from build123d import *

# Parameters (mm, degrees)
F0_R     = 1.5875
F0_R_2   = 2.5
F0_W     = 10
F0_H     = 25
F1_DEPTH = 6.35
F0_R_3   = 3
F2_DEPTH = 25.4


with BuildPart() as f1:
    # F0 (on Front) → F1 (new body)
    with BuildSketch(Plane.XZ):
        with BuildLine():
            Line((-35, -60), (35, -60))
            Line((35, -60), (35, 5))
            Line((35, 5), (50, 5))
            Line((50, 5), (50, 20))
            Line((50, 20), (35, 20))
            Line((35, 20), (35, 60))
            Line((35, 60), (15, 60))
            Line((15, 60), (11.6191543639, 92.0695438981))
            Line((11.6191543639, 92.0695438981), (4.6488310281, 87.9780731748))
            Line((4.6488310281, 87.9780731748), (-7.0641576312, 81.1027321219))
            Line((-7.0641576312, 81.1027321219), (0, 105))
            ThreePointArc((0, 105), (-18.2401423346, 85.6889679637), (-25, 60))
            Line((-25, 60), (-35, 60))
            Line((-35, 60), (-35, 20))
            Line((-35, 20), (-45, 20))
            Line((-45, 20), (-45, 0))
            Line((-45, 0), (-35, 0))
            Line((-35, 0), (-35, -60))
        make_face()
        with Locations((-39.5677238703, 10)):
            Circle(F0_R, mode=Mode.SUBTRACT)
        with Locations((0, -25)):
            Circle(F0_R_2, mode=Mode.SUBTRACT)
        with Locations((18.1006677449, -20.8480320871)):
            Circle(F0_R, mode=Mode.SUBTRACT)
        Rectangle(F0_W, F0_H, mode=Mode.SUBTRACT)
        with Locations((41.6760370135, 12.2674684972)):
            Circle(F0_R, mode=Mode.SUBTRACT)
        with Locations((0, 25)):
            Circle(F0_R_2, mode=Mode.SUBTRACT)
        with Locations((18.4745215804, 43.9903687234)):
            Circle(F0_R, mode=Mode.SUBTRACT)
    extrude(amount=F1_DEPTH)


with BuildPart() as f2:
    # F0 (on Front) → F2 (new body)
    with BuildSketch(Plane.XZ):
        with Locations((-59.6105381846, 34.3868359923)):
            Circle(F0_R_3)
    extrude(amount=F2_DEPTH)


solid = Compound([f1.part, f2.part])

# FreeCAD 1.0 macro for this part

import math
import FreeCAD as App
import Part
import Sketcher


def add_polygon(sketch, points):
    """Adds a closed chain of lines whose ends are joined by coincident constraints."""
    first, n = sketch.GeometryCount, len(points)
    for a, b in zip(points, points[1:] + points[:1]):
        sketch.addGeometry(Part.LineSegment(App.Vector(*a, 0), App.Vector(*b, 0)), False)
    for i in range(n):
        sketch.addConstraint(Sketcher.Constraint("Coincident", first + i, 2, first + (i + 1) % n, 1))

doc = App.newDocument("Part")
body = doc.addObject("PartDesign::Body", "Body")

# Sketch on XZ plane
sketch1 = body.newObject("Sketcher::SketchObject", "Sketch")
sketch1.AttachmentSupport = (doc.getObject("XZ_Plane"), [""])
sketch1.MapMode = "FlatFace"
sketch1.addGeometry(Part.LineSegment(App.Vector(-35, -60, 0), App.Vector(35, -60, 0)), False)  # 0
sketch1.addGeometry(Part.LineSegment(App.Vector(35, -60, 0), App.Vector(35, 5, 0)), False)  # 1
sketch1.addGeometry(Part.LineSegment(App.Vector(35, 5, 0), App.Vector(50, 5, 0)), False)  # 2
sketch1.addGeometry(Part.LineSegment(App.Vector(50, 5, 0), App.Vector(50, 20, 0)), False)  # 3
sketch1.addGeometry(Part.LineSegment(App.Vector(50, 20, 0), App.Vector(35, 20, 0)), False)  # 4
sketch1.addGeometry(Part.LineSegment(App.Vector(35, 20, 0), App.Vector(35, 60, 0)), False)  # 5
sketch1.addGeometry(Part.LineSegment(App.Vector(35, 60, 0), App.Vector(15, 60, 0)), False)  # 6
sketch1.addGeometry(Part.LineSegment(App.Vector(15, 60, 0), App.Vector(11.619154, 92.069544, 0)), False)  # 7
sketch1.addGeometry(Part.LineSegment(App.Vector(11.619154, 92.069544, 0), App.Vector(4.648831, 87.978073, 0)), False)  # 8
sketch1.addGeometry(Part.LineSegment(App.Vector(4.648831, 87.978073, 0), App.Vector(-7.064158, 81.102732, 0)), False)  # 9
sketch1.addGeometry(Part.LineSegment(App.Vector(-7.064158, 81.102732, 0), App.Vector(0, 105, 0)), False)  # 10
sketch1.addGeometry(Part.ArcOfCircle(Part.Circle(App.Vector(28.727267, 59.595963, 0), App.Vector(0, 0, 1), 53.728787), math.radians(122.321657), math.radians(179.569135)), False)  # 11
sketch1.addGeometry(Part.LineSegment(App.Vector(-25, 60, 0), App.Vector(-35, 60, 0)), False)  # 12
sketch1.addGeometry(Part.LineSegment(App.Vector(-35, 60, 0), App.Vector(-35, 20, 0)), False)  # 13
sketch1.addGeometry(Part.LineSegment(App.Vector(-35, 20, 0), App.Vector(-45, 20, 0)), False)  # 14
sketch1.addGeometry(Part.LineSegment(App.Vector(-45, 20, 0), App.Vector(-45, 0, 0)), False)  # 15
sketch1.addGeometry(Part.LineSegment(App.Vector(-45, 0, 0), App.Vector(-35, 0, 0)), False)  # 16
sketch1.addGeometry(Part.LineSegment(App.Vector(-35, 0, 0), App.Vector(-35, -60, 0)), False)  # 17
sketch1.addGeometry(Part.Circle(App.Vector(0, -25, 0), App.Vector(0, 0, 1), 2.5), False)  # 18
add_polygon(sketch1, [(5, -12.5), (-5, -12.5), (-5, 12.5), (5, 12.5)])  # lines 19-22
sketch1.addGeometry(Part.Circle(App.Vector(18.100668, -20.848032, 0), App.Vector(0, 0, 1), 1.5875), False)  # 23
sketch1.addGeometry(Part.Circle(App.Vector(-39.567724, 10, 0), App.Vector(0, 0, 1), 1.5875), False)  # 24
sketch1.addGeometry(Part.Circle(App.Vector(0, 25, 0), App.Vector(0, 0, 1), 2.5), False)  # 25
sketch1.addGeometry(Part.Circle(App.Vector(41.676037, 12.267468, 0), App.Vector(0, 0, 1), 1.5875), False)  # 26
sketch1.addGeometry(Part.Circle(App.Vector(18.474522, 43.990369, 0), App.Vector(0, 0, 1), 1.5875), False)  # 27
sketch1.addConstraint([
    Sketcher.Constraint("Coincident", 0, 2, 1, 1),
    Sketcher.Constraint("Coincident", 1, 2, 2, 1),
    Sketcher.Constraint("Coincident", 2, 2, 3, 1),
    Sketcher.Constraint("Coincident", 3, 2, 4, 1),
    Sketcher.Constraint("Coincident", 4, 2, 5, 1),
    Sketcher.Constraint("Coincident", 5, 2, 6, 1),
    Sketcher.Constraint("Coincident", 6, 2, 7, 1),
    Sketcher.Constraint("Coincident", 7, 2, 8, 1),
    Sketcher.Constraint("Coincident", 8, 2, 9, 1),
    Sketcher.Constraint("Coincident", 9, 2, 10, 1),
    Sketcher.Constraint("Coincident", 10, 2, 11, 1),
    Sketcher.Constraint("Coincident", 11, 2, 12, 1),
    Sketcher.Constraint("Coincident", 12, 2, 13, 1),
    Sketcher.Constraint("Coincident", 13, 2, 14, 1),
    Sketcher.Constraint("Coincident", 14, 2, 15, 1),
    Sketcher.Constraint("Coincident", 15, 2, 16, 1),
    Sketcher.Constraint("Coincident", 16, 2, 17, 1),
    Sketcher.Constraint("Coincident", 17, 2, 0, 1),
    Sketcher.Constraint("Horizontal", 0),
    Sketcher.Constraint("Vertical", 1),
    Sketcher.Constraint("Horizontal", 2),
    Sketcher.Constraint("Vertical", 3),
    Sketcher.Constraint("Horizontal", 4),
    Sketcher.Constraint("Vertical", 5),
    Sketcher.Constraint("Horizontal", 6),
    Sketcher.Constraint("Horizontal", 12),
    Sketcher.Constraint("Vertical", 13),
    Sketcher.Constraint("Horizontal", 14),
    Sketcher.Constraint("Vertical", 15),
    Sketcher.Constraint("Horizontal", 16),
    Sketcher.Constraint("Vertical", 17),
    Sketcher.Constraint("Horizontal", 19),
    Sketcher.Constraint("Vertical", 20),
    Sketcher.Constraint("Horizontal", 21),
    Sketcher.Constraint("Vertical", 22),
    Sketcher.Constraint("PointOnObject", 18, 3, -2),
    Sketcher.Constraint("PointOnObject", 25, 3, -2),
    Sketcher.Constraint("PointOnObject", 10, 2, -2),
    Sketcher.Constraint("PointOnObject", 15, 2, -1),
    Sketcher.Constraint("Diameter", 18, 5.0),
    Sketcher.Constraint("Diameter", 25, 5.0),
    Sketcher.Constraint("DistanceX", 0, 1, 0, 2, 70.0),
    Sketcher.Constraint("DistanceX", 2, 1, 2, 2, 15.0),
    Sketcher.Constraint("DistanceX", 4, 2, 4, 1, 15.0),
    Sketcher.Constraint("DistanceX", 6, 2, 6, 1, 20.0),
    Sketcher.Constraint("DistanceX", 12, 2, 12, 1, 10.0),
    Sketcher.Constraint("DistanceX", 14, 2, 14, 1, 10.0),
    Sketcher.Constraint("DistanceX", 16, 1, 16, 2, 10.0),
    Sketcher.Constraint("DistanceX", 19, 2, 19, 1, 10.0),
    Sketcher.Constraint("DistanceY", 1, 1, 1, 2, 65.0),
    Sketcher.Constraint("DistanceY", 3, 1, 3, 2, 15.0),
    Sketcher.Constraint("DistanceY", 5, 1, 5, 2, 40.0),
    Sketcher.Constraint("DistanceY", 13, 2, 13, 1, 40.0),
    Sketcher.Constraint("DistanceY", 15, 2, 15, 1, 20.0),
    Sketcher.Constraint("DistanceY", 17, 2, 17, 1, 60.0),
    Sketcher.Constraint("DistanceY", 20, 1, 20, 2, 25.0),
    Sketcher.Constraint("Diameter", 23, 3.175),
    Sketcher.Constraint("Diameter", 24, 3.175),
    Sketcher.Constraint("Diameter", 26, 3.175),
    Sketcher.Constraint("Diameter", 27, 3.175),
    Sketcher.Constraint("DistanceY", 18, 3, -1, 1, 25.0),
    Sketcher.Constraint("DistanceY", -1, 1, 24, 3, 10.0),
    Sketcher.Constraint("DistanceY", -1, 1, 25, 3, 25.0),
    Sketcher.Constraint("DistanceX", -1, 1, 0, 2, 35.0),
    Sketcher.Constraint("DistanceY", -1, 1, 10, 2, 105.0),
    Sketcher.Constraint("DistanceX", 19, 2, -1, 1, 5.0),
    Sketcher.Constraint("DistanceY", 19, 2, -1, 1, 12.5),
    Sketcher.Constraint("Radius", 11, 53.728787),
    Sketcher.Constraint("DistanceX", 23, 3, 11, 3, 10.6266),
    Sketcher.Constraint("DistanceY", 23, 3, 26, 3, 33.115501),
    Sketcher.Constraint("DistanceY", 26, 3, 27, 3, 31.7229),
    Sketcher.Constraint("Distance", 7, 32.24726),
    Sketcher.Constraint("Distance", 8, 8.082422),
    Sketcher.Constraint("DistanceY", -1, 1, 26, 3, 12.267468),
    Sketcher.Constraint("DistanceX", -1, 1, 27, 3, 18.474522),
    Sketcher.Constraint("DistanceX", -1, 1, 8, 2, 4.648831),
    Sketcher.Constraint("DistanceX", 24, 3, 23, 3, 57.668392),
    Sketcher.Constraint("DistanceX", 23, 3, 26, 3, 23.575369),
    Sketcher.Constraint("DistanceY", 11, 3, 7, 2, 32.473581),
    Sketcher.Constraint("DistanceX", 9, 2, 8, 2, 11.712989),
    Sketcher.Constraint("DistanceY", 9, 2, 8, 2, 6.875341),
])
pad1 = body.newObject("PartDesign::Pad", "Pad")
pad1.Profile = sketch1
pad1.Length = 6.35
body2 = doc.addObject("PartDesign::Body", "Body001")

# Sketch on XZ plane
sketch2 = body2.newObject("Sketcher::SketchObject", "Sketch001")
sketch2.AttachmentSupport = (doc.getObject("XZ_Plane001"), [""])
sketch2.MapMode = "FlatFace"
sketch2.addGeometry(Part.Circle(App.Vector(-59.6, 34.4, 0), App.Vector(0, 0, 1), 3), False)
sketch2.addConstraint([
    Sketcher.Constraint("Diameter", 0, 6.0),
    Sketcher.Constraint("DistanceX", 0, 3, -1, 1, 59.610538),
    Sketcher.Constraint("DistanceY", -1, 1, 0, 3, 34.386836),
])
pad2 = body2.newObject("PartDesign::Pad", "Pad001")
pad2.Profile = sketch2
pad2.Length = 25.4

doc.recompute()
